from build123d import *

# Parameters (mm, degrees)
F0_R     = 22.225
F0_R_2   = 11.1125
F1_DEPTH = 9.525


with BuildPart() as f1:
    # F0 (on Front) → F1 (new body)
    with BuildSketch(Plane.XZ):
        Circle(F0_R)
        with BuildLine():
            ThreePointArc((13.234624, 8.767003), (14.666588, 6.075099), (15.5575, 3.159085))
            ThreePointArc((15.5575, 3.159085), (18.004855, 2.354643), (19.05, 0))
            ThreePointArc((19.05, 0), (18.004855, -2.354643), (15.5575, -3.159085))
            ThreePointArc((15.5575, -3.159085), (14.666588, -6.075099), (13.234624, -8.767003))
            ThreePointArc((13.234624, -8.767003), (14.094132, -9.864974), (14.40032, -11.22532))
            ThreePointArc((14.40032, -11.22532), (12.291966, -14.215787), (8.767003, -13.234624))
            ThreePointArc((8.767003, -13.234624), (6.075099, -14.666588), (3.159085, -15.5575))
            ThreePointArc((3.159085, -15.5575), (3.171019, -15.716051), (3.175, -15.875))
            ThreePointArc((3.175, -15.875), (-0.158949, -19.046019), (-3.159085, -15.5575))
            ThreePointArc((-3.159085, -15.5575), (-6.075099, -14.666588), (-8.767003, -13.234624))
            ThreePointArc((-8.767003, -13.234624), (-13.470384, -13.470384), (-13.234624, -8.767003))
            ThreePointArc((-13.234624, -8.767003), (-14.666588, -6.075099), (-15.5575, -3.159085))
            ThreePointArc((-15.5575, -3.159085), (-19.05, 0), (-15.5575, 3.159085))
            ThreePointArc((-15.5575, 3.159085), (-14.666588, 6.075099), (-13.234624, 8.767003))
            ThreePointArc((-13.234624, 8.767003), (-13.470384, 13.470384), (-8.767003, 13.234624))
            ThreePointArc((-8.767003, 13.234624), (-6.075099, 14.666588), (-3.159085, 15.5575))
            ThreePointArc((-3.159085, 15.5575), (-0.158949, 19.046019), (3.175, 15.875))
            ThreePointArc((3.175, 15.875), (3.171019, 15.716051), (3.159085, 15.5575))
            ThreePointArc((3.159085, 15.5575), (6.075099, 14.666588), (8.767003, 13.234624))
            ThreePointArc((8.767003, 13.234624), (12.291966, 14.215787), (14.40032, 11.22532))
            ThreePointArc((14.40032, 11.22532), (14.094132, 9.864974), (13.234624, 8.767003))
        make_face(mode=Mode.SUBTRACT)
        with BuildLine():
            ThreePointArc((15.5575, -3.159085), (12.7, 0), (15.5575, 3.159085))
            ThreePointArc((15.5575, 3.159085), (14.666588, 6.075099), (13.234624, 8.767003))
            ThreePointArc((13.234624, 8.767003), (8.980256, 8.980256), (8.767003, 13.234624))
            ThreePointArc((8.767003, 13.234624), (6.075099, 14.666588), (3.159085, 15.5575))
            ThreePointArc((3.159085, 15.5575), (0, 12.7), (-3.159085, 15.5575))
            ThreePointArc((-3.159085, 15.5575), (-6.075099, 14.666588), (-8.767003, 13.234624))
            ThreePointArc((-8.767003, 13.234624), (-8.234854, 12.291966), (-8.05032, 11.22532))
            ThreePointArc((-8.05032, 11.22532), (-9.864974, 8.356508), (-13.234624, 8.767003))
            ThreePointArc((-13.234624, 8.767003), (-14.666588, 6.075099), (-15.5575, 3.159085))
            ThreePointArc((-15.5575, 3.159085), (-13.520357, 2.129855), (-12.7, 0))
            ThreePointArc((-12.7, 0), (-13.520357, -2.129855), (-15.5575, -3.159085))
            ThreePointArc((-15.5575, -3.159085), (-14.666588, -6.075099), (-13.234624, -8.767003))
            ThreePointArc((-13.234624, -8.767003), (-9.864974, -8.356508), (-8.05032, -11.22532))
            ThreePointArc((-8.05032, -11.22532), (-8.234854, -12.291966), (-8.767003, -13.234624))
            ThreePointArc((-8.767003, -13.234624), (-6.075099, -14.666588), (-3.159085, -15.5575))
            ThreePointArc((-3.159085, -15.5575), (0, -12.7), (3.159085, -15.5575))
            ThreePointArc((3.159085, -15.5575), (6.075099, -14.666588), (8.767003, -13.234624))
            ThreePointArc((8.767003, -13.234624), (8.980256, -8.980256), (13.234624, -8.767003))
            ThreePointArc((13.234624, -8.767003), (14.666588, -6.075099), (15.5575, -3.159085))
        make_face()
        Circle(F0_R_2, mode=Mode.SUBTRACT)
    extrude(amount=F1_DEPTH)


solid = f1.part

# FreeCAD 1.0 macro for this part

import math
import FreeCAD as App
import Part
import Sketcher
Q = App.Units.Quantity

doc = App.newDocument("Part")
body = doc.addObject("PartDesign::Body", "Body")

sketch1 = body.newObject("Sketcher::SketchObject", "Sketch")
sketch1.AttachmentSupport = (doc.getObject("XZ_Plane"), [""])
sketch1.MapMode = "FlatFace"
sketch1.addGeometry(Part.Circle(App.Vector(0, 0, 0), App.Vector(0, 0, 1), 22.23), False)
sketch1.addGeometry(Part.ArcOfCircle(Part.Circle(App.Vector(-11.23, -11.23, 0), App.Vector(0, 0, 1), 3.18), math.radians(129), math.radians(321)), False)
sketch1.addGeometry(Part.ArcOfCircle(Part.Circle(App.Vector(-11.23, -11.23, 0), App.Vector(0, 0, 1), 3.18), math.radians(0), math.radians(129)), False)
sketch1.addGeometry(Part.ArcOfCircle(Part.Circle(App.Vector(-11.23, -11.23, 0), App.Vector(0, 0, 1), 3.18), math.radians(-39), math.radians(0)), False)
sketch1.addGeometry(Part.ArcOfCircle(Part.Circle(App.Vector(0, -15.88, 0), App.Vector(0, 0, 1), 3.17), math.radians(174), math.radians(360)), False)
sketch1.addGeometry(Part.ArcOfCircle(Part.Circle(App.Vector(0, -15.87, 0), App.Vector(0, 0, 1), 3.17), math.radians(6), math.radians(174)), False)
sketch1.addGeometry(Part.ArcOfCircle(Part.Circle(App.Vector(0, -15.87, 0), App.Vector(0, 0, 1), 3.17), math.radians(0), math.radians(5.74)), False)
sketch1.addGeometry(Part.ArcOfCircle(Part.Circle(App.Vector(11.23, -11.23, 0), App.Vector(0, 0, 1), 3.17), math.radians(-141), math.radians(0)), False)
sketch1.addGeometry(Part.ArcOfCircle(Part.Circle(App.Vector(11.23, -11.23, 0), App.Vector(0, 0, 1), 3.18), math.radians(51), math.radians(219)), False)
sketch1.addGeometry(Part.ArcOfCircle(Part.Circle(App.Vector(11.23, -11.23, 0), App.Vector(0, 0, 1), 3.18), math.radians(0), math.radians(51)), False)
sketch1.addGeometry(Part.ArcOfCircle(Part.Circle(App.Vector(-15.88, 0, 0), App.Vector(0, 0, 1), 3.17), math.radians(84), math.radians(276)), False)
sketch1.addGeometry(Part.ArcOfCircle(Part.Circle(App.Vector(-15.87, 0, 0), App.Vector(0, 0, 1), 3.17), math.radians(0), math.radians(84)), False)
sketch1.addGeometry(Part.ArcOfCircle(Part.Circle(App.Vector(-15.87, 0, 0), App.Vector(0, 0, 1), 3.17), math.radians(-84), math.radians(0)), False)
sketch1.addGeometry(Part.Circle(App.Vector(0, 0, 0), App.Vector(0, 0, 1), 11.11), False)
sketch1.addGeometry(Part.ArcOfCircle(Part.Circle(App.Vector(-11.23, 11.23, 0), App.Vector(0, 0, 1), 3.18), math.radians(39), math.radians(231)), False)
sketch1.addGeometry(Part.ArcOfCircle(Part.Circle(App.Vector(-11.23, 11.23, 0), App.Vector(0, 0, 1), 3.18), math.radians(0), math.radians(39)), False)
sketch1.addGeometry(Part.ArcOfCircle(Part.Circle(App.Vector(-11.23, 11.23, 0), App.Vector(0, 0, 1), 3.18), math.radians(-129), math.radians(0)), False)
sketch1.addGeometry(Part.ArcOfCircle(Part.Circle(App.Vector(15.88, 0, 0), App.Vector(0, 0, 1), 3.17), math.radians(-96), math.radians(0)), False)
sketch1.addGeometry(Part.ArcOfCircle(Part.Circle(App.Vector(15.87, 0, 0), App.Vector(0, 0, 1), 3.17), math.radians(96), math.radians(264)), False)
sketch1.addGeometry(Part.ArcOfCircle(Part.Circle(App.Vector(15.88, 0, 0), App.Vector(0, 0, 1), 3.17), math.radians(0), math.radians(96)), False)
sketch1.addGeometry(Part.ArcOfCircle(Part.Circle(App.Vector(0, 15.87, 0), App.Vector(0, 0, 1), 3.17), math.radians(-5.74), math.radians(0)), False)
sketch1.addGeometry(Part.ArcOfCircle(Part.Circle(App.Vector(0, 15.87, 0), App.Vector(0, 0, 1), 3.17), math.radians(-174), math.radians(-6)), False)
sketch1.addGeometry(Part.ArcOfCircle(Part.Circle(App.Vector(0, 15.88, 0), App.Vector(0, 0, 1), 3.17), math.radians(0), math.radians(186)), False)
sketch1.addGeometry(Part.ArcOfCircle(Part.Circle(App.Vector(11.23, 11.23, 0), App.Vector(0, 0, 1), 3.18), math.radians(-51), math.radians(0)), False)
sketch1.addGeometry(Part.ArcOfCircle(Part.Circle(App.Vector(11.23, 11.23, 0), App.Vector(0, 0, 1), 3.18), math.radians(141), math.radians(309)), False)
sketch1.addGeometry(Part.ArcOfCircle(Part.Circle(App.Vector(11.23, 11.23, 0), App.Vector(0, 0, 1), 3.17), math.radians(0), math.radians(141)), False)
sketch1.addConstraint(Sketcher.Constraint("Tangent", 1, 1, 2, 2))
sketch1.addConstraint(Sketcher.Constraint("Tangent", 2, 1, 3, 2))
sketch1.addConstraint(Sketcher.Constraint("Tangent", 3, 1, 1, 2))
sketch1.addConstraint(Sketcher.Constraint("Tangent", 4, 1, 5, 2))
sketch1.addConstraint(Sketcher.Constraint("Coincident", 5, 1, 6, 2))
sketch1.addConstraint(Sketcher.Constraint("Coincident", 6, 1, 4, 2))
sketch1.addConstraint(Sketcher.Constraint("Tangent", 7, 1, 8, 2))
sketch1.addConstraint(Sketcher.Constraint("Tangent", 8, 1, 9, 2))
sketch1.addConstraint(Sketcher.Constraint("Tangent", 9, 1, 7, 2))
sketch1.addConstraint(Sketcher.Constraint("Tangent", 10, 1, 11, 2))
sketch1.addConstraint(Sketcher.Constraint("Tangent", 11, 1, 12, 2))
sketch1.addConstraint(Sketcher.Constraint("Tangent", 12, 1, 10, 2))
sketch1.addConstraint(Sketcher.Constraint("Tangent", 14, 1, 15, 2))
sketch1.addConstraint(Sketcher.Constraint("Tangent", 15, 1, 16, 2))
sketch1.addConstraint(Sketcher.Constraint("Tangent", 16, 1, 14, 2))
sketch1.addConstraint(Sketcher.Constraint("Tangent", 17, 1, 18, 2))
sketch1.addConstraint(Sketcher.Constraint("Tangent", 18, 1, 19, 2))
sketch1.addConstraint(Sketcher.Constraint("Tangent", 19, 1, 17, 2))
sketch1.addConstraint(Sketcher.Constraint("Coincident", 20, 1, 21, 2))
sketch1.addConstraint(Sketcher.Constraint("Tangent", 21, 1, 22, 2))
sketch1.addConstraint(Sketcher.Constraint("Coincident", 22, 1, 20, 2))
sketch1.addConstraint(Sketcher.Constraint("Tangent", 23, 1, 24, 2))
sketch1.addConstraint(Sketcher.Constraint("Tangent", 24, 1, 25, 2))
sketch1.addConstraint(Sketcher.Constraint("Tangent", 25, 1, 23, 2))
sketch1.addConstraint(Sketcher.Constraint("Coincident", 0, 3, -1, 1))
sketch1.addConstraint(Sketcher.Constraint("Coincident", 13, 3, -1, 1))
sketch1.addConstraint(Sketcher.Constraint("Equal", 2, 4))
sketch1.addConstraint(Sketcher.Constraint("Equal", 4, 5))
sketch1.addConstraint(Sketcher.Constraint("Equal", 5, 7))
sketch1.addConstraint(Sketcher.Constraint("Equal", 8, 10))
sketch1.addConstraint(Sketcher.Constraint("Equal", 12, 14))
sketch1.addConstraint(Sketcher.Constraint("Equal", 16, 17))
sketch1.addConstraint(Sketcher.Constraint("Equal", 6, 20))
sketch1.addConstraint(Sketcher.Constraint("Equal", 19, 21))
sketch1.addConstraint(Sketcher.Constraint("Equal", 21, 22))
sketch1.addConstraint(Sketcher.Constraint("Equal", 9, 23))
sketch1.addConstraint(Sketcher.Constraint("Symmetric", 7, 3, 14, 3, -1, 1))
sketch1.addConstraint(Sketcher.Constraint("Symmetric", 10, 3, 17, 3, -1, 1))
sketch1.addConstraint(Sketcher.Constraint("Symmetric", 4, 3, 21, 3, -1, 1))
sketch1.addConstraint(Sketcher.Constraint("Symmetric", 1, 3, 23, 3, -1, 1))
sketch1.addConstraint(Sketcher.Constraint("Symmetric", 1, 3, 7, 3, -2))
sketch1.addConstraint(Sketcher.Constraint("Symmetric", 4, 1, 5, 1, -2))
sketch1.addConstraint(Sketcher.Constraint("Symmetric", 12, 1, 17, 1, -2))
sketch1.addConstraint(Sketcher.Constraint("PointOnObject", 11, 1, -1))
sketch1.addConstraint(Sketcher.Constraint("PointOnObject", 19, 1, -1))
sketch1.addConstraint(Sketcher.Constraint("Horizontal", 9, 3, 2, 1))
sketch1.addConstraint(Sketcher.Constraint("Horizontal", 5, 3, 6, 1))
sketch1.addConstraint(Sketcher.Constraint("Horizontal", 3, 1, 7, 1))
sketch1.addConstraint(Sketcher.Constraint("Horizontal", 1, 1, 8, 1))
sketch1.addConstraint(Sketcher.Constraint("Horizontal", 2, 1, 9, 1))
sketch1.addConstraint(Sketcher.Constraint("Horizontal", 25, 3, 15, 1))
sketch1.addConstraint(Sketcher.Constraint("Horizontal", 10, 1, 18, 1))
sketch1.addConstraint(Sketcher.Constraint("Horizontal", 20, 1, 21, 1))
sketch1.addConstraint(Sketcher.Constraint("Horizontal", 21, 3, 22, 1))
sketch1.addConstraint(Sketcher.Constraint("Horizontal", 16, 1, 23, 1))
sketch1.addConstraint(Sketcher.Constraint("Horizontal", 14, 1, 24, 1))
sketch1.addConstraint(Sketcher.Constraint("Horizontal", 15, 1, 25, 1))
sketch1.addConstraint(Sketcher.Constraint("Vertical", 10, 1, 12, 1))
sketch1.addConstraint(Sketcher.Constraint("Vertical", 3, 1, 14, 1))
sketch1.addConstraint(Sketcher.Constraint("Vertical", 1, 1, 16, 1))
sketch1.addConstraint(Sketcher.Constraint("Vertical", 5, 1, 20, 1))
sketch1.addConstraint(Sketcher.Constraint("Diameter", 0, Q("1.75 in")))
sketch1.addConstraint(Sketcher.Constraint("Diameter", 13, Q("0.875 in")))
sketch1.addConstraint(Sketcher.Constraint("Radius", 1, Q("0.125 in")))
sketch1.addConstraint(Sketcher.Constraint("DistanceX", 11, 1, -1, 1, Q("0.5 in")))
sketch1.addConstraint(Sketcher.Constraint("DistanceY", 4, 3, -1, 1, Q("0.625 in")))
sketch1.addConstraint(Sketcher.Constraint("DistanceY", 4, 1, -1, 1, Q("0.6125 in")))
sketch1.addConstraint(Sketcher.Constraint("DistanceX", 10, 1, -1, 1, Q("0.6125 in")))
sketch1.addConstraint(Sketcher.Constraint("Radius", 6, Q("3.174794 mm")))
sketch1.addConstraint(Sketcher.Constraint("DistanceX", 1, 3, -1, 1, Q("11.22532 mm")))
sketch1.addConstraint(Sketcher.Constraint("DistanceY", 1, 3, -1, 1, Q("11.22532 mm")))
sketch1.addConstraint(Sketcher.Constraint("DistanceX", 3, 3, 3, 1, Q("2.458328 mm")))
sketch1.addConstraint(Sketcher.Constraint("DistanceX", 1, 1, 3, 1, Q("4.467621 mm")))
pad1 = body.newObject("PartDesign::Pad", "Pad")
pad1.Profile = sketch1
pad1.Length = Q("0.375 in")

doc.recompute()
